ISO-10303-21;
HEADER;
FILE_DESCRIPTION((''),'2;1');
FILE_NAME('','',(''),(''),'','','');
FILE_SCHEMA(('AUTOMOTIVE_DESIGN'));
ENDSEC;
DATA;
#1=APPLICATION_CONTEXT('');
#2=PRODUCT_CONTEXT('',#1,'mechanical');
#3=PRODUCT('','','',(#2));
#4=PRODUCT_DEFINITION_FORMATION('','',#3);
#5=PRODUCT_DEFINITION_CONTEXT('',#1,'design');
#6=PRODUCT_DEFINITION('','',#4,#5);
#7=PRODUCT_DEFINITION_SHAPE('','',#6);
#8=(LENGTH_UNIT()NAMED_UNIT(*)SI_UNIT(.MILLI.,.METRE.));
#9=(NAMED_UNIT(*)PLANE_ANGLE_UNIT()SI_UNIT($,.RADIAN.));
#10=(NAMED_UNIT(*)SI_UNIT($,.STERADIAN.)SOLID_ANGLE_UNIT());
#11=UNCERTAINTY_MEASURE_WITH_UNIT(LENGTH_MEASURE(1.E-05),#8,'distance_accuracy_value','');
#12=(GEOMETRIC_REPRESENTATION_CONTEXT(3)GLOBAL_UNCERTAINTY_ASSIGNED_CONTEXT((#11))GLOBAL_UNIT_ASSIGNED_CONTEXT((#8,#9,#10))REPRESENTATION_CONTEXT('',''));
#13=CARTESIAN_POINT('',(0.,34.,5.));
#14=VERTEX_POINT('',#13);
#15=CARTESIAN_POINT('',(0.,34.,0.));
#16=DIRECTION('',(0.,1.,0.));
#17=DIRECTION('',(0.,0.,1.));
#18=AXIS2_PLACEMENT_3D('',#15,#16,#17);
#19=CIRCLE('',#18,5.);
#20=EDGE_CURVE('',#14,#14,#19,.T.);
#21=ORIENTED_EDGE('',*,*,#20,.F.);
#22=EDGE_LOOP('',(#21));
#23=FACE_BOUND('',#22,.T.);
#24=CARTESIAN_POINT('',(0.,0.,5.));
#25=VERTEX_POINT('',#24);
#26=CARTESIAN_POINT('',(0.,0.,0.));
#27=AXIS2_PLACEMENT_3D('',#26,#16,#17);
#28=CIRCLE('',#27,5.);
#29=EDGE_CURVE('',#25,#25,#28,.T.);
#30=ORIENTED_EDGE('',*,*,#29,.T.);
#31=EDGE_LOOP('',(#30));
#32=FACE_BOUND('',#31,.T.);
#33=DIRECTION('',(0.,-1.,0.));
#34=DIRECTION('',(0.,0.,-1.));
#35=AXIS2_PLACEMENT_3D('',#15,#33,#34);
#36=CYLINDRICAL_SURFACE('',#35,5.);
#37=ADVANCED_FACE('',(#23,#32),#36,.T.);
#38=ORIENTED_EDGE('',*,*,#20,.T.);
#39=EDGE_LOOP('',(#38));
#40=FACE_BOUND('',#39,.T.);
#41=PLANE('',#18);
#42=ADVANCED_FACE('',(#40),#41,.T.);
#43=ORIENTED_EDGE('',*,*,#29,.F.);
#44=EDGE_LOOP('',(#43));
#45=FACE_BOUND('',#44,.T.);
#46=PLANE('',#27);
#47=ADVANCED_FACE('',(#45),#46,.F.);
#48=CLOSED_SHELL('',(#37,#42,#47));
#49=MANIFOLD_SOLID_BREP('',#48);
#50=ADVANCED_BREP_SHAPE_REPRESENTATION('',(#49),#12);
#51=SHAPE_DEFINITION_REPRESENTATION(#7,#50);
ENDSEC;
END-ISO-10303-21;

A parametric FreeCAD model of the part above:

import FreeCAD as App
import Part
import Sketcher
Q = App.Units.Quantity

doc = App.newDocument("Part")
body = doc.addObject("PartDesign::Body", "Body")

sketch1 = doc.addObject("Sketcher::SketchObject", "Sketch")
body.addObject(sketch1)
sketch1.AttachmentSupport = (doc.XZ_Plane, [""])
sketch1.MapMode = "FlatFace"
sketch1.addGeometry(Part.Circle(App.Vector(0, 0, 0), App.Vector(0, 0, 1), 5), False)
sketch1.addConstraint([
    Sketcher.Constraint("Coincident", 0, 3, -1, 1),
    Sketcher.Constraint("Diameter", 0, Q("10 mm")),
])
pad1 = doc.addObject("PartDesign::Pad", "Pad")
body.addObject(pad1)
pad1.Profile = sketch1
pad1.Length = 34
pad1.Reversed = True

doc.recompute()
